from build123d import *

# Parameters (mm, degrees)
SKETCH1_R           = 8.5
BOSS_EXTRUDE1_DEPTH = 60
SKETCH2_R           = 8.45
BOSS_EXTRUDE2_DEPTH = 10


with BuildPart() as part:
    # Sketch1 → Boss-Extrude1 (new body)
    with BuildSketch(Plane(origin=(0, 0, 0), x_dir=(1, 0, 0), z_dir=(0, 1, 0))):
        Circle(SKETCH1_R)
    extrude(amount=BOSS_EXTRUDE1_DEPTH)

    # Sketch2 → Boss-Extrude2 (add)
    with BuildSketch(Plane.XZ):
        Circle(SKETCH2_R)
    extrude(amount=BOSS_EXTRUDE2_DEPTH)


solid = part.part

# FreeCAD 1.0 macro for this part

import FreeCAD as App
import Part
import Sketcher

V = App.Vector

doc = App.newDocument("Part")
params = doc.addObject("Spreadsheet::Sheet", "Params")
for row, (alias, value) in enumerate([
    ("sketch1_diameter", "17 mm"),
    ("pad1_length", "60 mm"),
    ("sketch2_diameter", "16.9 mm"),
    ("pad2_length", "10 mm"),
], start=1):
    params.set(f"A{row}", alias)
    params.set(f"B{row}", "=" + value)
    params.setAlias(f"B{row}", alias)

body = doc.addObject("PartDesign::Body", "Body")

# Sketch on XZ plane
sketch1 = body.newObject("Sketcher::SketchObject", "Sketch")
sketch1.AttachmentSupport = (doc.getObject("XZ_Plane"), [""])
sketch1.MapMode = "FlatFace"
sketch1.addGeometry(Part.Circle(V(0, 0, 0), V(0, 0, 1), 8), False)
sketch1.addConstraint([
    Sketcher.Constraint("Coincident", 0, 3, -1, 1),
    Sketcher.Constraint("Diameter", 0, 17.0),
])
sketch1.setExpression("Constraints[1]", "Params.sketch1_diameter")
pad1 = body.newObject("PartDesign::Pad", "Pad")
pad1.Profile = sketch1
pad1.setExpression("Length", "Params.pad1_length")
pad1.Reversed = True

# Sketch on XZ plane
sketch2 = body.newObject("Sketcher::SketchObject", "Sketch001")
sketch2.AttachmentSupport = (doc.getObject("XZ_Plane"), [""])
sketch2.MapMode = "FlatFace"
sketch2.addGeometry(Part.Circle(V(0, 0, 0), V(0, 0, 1), 8), False)
sketch2.addConstraint([
    Sketcher.Constraint("Coincident", 0, 3, -1, 1),
    Sketcher.Constraint("Diameter", 0, 16.9),
])
sketch2.setExpression("Constraints[1]", "Params.sketch2_diameter")
pad2 = body.newObject("PartDesign::Pad", "Pad001")
pad2.Profile = sketch2
pad2.setExpression("Length", "Params.pad2_length")

doc.recompute()
